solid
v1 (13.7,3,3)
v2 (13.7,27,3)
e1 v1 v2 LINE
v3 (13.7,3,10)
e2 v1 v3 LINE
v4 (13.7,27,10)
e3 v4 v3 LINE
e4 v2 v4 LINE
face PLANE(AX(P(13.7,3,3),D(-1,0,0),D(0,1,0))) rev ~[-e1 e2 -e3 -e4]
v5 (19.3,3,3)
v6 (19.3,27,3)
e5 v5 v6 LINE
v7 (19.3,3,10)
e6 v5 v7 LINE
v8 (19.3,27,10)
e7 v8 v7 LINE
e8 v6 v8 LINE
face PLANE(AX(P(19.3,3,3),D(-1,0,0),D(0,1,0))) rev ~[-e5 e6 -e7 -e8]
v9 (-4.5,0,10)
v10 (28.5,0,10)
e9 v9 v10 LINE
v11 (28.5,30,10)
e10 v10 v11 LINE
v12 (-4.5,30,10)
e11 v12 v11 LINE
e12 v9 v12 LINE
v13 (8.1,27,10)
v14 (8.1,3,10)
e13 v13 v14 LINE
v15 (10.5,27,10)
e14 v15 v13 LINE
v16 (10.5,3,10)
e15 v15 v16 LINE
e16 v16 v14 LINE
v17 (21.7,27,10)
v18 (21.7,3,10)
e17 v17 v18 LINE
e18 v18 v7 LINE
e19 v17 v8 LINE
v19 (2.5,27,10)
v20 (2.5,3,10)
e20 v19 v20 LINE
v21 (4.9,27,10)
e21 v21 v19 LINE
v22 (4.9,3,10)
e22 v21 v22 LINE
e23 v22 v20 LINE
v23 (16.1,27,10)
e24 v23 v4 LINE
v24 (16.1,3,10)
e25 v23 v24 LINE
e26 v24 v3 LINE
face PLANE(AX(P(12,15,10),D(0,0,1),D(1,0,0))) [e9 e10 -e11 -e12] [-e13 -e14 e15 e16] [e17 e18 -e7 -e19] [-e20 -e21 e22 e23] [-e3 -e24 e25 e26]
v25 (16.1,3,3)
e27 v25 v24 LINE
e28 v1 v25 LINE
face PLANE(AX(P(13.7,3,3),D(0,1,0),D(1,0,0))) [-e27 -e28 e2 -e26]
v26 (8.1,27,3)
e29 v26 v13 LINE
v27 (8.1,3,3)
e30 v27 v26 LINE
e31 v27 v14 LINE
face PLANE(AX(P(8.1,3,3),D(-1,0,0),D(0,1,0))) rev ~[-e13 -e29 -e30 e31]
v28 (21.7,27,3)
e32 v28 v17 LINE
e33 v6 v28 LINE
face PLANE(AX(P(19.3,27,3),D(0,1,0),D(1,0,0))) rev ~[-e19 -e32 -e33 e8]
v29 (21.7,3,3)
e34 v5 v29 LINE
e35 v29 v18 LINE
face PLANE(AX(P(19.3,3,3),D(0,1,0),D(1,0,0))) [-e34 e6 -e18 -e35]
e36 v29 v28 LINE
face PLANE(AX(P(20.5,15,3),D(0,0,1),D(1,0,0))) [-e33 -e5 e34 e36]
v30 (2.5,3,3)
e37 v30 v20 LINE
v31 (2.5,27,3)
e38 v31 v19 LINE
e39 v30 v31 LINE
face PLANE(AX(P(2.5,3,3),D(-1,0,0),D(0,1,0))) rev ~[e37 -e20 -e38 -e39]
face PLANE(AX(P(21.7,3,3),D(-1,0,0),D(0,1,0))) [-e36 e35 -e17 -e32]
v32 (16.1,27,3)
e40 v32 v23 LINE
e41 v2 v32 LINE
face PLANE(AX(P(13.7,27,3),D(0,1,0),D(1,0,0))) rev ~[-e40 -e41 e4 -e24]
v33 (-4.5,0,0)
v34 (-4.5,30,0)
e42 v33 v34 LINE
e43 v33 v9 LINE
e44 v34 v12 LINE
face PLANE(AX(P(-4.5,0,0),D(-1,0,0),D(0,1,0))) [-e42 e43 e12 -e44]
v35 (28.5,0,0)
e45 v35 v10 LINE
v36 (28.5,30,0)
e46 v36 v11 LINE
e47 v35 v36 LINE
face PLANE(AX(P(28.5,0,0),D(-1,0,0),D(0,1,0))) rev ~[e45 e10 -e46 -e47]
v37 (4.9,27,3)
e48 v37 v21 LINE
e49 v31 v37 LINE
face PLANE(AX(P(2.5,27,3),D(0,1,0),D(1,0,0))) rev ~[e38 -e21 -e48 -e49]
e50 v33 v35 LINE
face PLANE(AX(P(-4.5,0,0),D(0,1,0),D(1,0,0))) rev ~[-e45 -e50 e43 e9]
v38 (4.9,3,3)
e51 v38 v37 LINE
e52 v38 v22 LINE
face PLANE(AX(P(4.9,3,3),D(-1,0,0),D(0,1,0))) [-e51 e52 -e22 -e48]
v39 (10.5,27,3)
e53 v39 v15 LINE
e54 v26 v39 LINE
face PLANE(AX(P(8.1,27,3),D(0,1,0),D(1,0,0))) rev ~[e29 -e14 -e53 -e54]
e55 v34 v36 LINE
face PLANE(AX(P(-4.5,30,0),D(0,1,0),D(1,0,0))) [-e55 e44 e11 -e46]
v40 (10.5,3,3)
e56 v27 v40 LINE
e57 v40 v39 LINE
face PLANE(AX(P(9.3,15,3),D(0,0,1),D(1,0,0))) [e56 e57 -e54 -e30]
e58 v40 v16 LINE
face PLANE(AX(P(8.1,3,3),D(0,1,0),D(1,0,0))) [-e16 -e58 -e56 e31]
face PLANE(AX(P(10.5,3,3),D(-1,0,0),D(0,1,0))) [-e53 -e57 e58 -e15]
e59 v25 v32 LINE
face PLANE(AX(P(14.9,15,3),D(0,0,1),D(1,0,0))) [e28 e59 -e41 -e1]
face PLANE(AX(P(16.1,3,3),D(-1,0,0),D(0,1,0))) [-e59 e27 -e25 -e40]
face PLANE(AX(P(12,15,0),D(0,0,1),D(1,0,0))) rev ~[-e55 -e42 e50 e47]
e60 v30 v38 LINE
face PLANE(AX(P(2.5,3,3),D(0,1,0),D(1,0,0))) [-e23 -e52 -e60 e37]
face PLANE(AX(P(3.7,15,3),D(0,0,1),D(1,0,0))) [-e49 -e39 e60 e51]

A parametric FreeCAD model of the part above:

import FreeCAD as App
import Part
import Sketcher
from FreeCAD import Vector
Q = App.Units.Quantity


def add_polygon(sketch, points):
    """Adds a closed chain of lines whose ends are joined by coincident constraints."""
    first, n = sketch.GeometryCount, len(points)
    for a, b in zip(points, points[1:] + points[:1]):
        sketch.addGeometry(Part.LineSegment(App.Vector(*a, 0), App.Vector(*b, 0)), False)
    for i in range(n):
        sketch.addConstraint(Sketcher.Constraint("Coincident", first + i, 2, first + (i + 1) % n, 1))

doc = App.newDocument("Part")
params = doc.addObject("Spreadsheet::Sheet", "Params")
for row, (alias, value) in enumerate([
    ("sketch1_height", "24 mm"),
    ("sketch1_width", "2.4 mm"),
    ("pad1_length", "22 mm"),
    ("sketch2_height", "24 mm"),
    ("sketch2_width", "2.4 mm"),
    ("pad2_length", "22 mm"),
    ("sketch3_height", "24 mm"),
    ("sketch3_width", "2.4 mm"),
    ("pad3_length", "22 mm"),
    ("sketch4_height", "24 mm"),
    ("sketch4_width", "2.4 mm"),
    ("pad4_length", "22 mm"),
    ("sketch5_width", "33 mm"),
    ("sketch5_height", "30 mm"),
    ("pad5_length", "10 mm"),
], start=1):
    params.set(f"A{row}", alias)
    params.set(f"B{row}", "=" + value)
    params.setAlias(f"B{row}", alias)

body = doc.addObject("PartDesign::Body", "Body")

sketch1 = body.newObject("Sketcher::SketchObject", "Sketch")
sketch1.AttachmentSupport = (doc.getObject("XY_Plane"), [""])
sketch1.MapMode = "FlatFace"
add_polygon(sketch1, [(8.1, 27), (8.1, 3), (10.5, 3), (10.5, 27)])
sketch1.addConstraint([
    Sketcher.Constraint("Vertical", 0),
    Sketcher.Constraint("Horizontal", 1),
    Sketcher.Constraint("Vertical", 2),
    Sketcher.Constraint("Horizontal", 3),
    Sketcher.Constraint("DistanceY", 0, 2, 0, 1, Q("24 mm")),
    Sketcher.Constraint("DistanceX", 1, 1, 1, 2, Q("2.4 mm")),
    Sketcher.Constraint("DistanceY", -1, 1, 0, 2, Q("3 mm")),
    Sketcher.Constraint("DistanceX", -1, 1, 0, 2, Q("8.1 mm")),
])
sketch1.setExpression("Constraints[8]", "Params.sketch1_height")
sketch1.setExpression("Constraints[9]", "Params.sketch1_width")
pad1 = body.newObject("PartDesign::Pad", "Pad")
pad1.Profile = sketch1
pad1.setExpression("Length", "Params.pad1_length")
body2 = doc.addObject("PartDesign::Body", "Body001")

sketch2 = body2.newObject("Sketcher::SketchObject", "Sketch001")
sketch2.AttachmentSupport = (doc.getObject("XY_Plane001"), [""])
sketch2.MapMode = "FlatFace"
add_polygon(sketch2, [(13.7, 27), (13.7, 3), (16.1, 3), (16.1, 27)])
sketch2.addConstraint([
    Sketcher.Constraint("Vertical", 0),
    Sketcher.Constraint("Horizontal", 1),
    Sketcher.Constraint("Vertical", 2),
    Sketcher.Constraint("Horizontal", 3),
    Sketcher.Constraint("DistanceY", 0, 2, 0, 1, Q("24 mm")),
    Sketcher.Constraint("DistanceX", 1, 1, 1, 2, Q("2.4 mm")),
    Sketcher.Constraint("DistanceY", -1, 1, 0, 2, Q("3 mm")),
    Sketcher.Constraint("DistanceX", -1, 1, 0, 2, Q("13.7 mm")),
])
sketch2.setExpression("Constraints[8]", "Params.sketch2_height")
sketch2.setExpression("Constraints[9]", "Params.sketch2_width")
pad2 = body2.newObject("PartDesign::Pad", "Pad001")
pad2.Profile = sketch2
pad2.setExpression("Length", "Params.pad2_length")
body3 = doc.addObject("PartDesign::Body", "Body002")

sketch3 = body3.newObject("Sketcher::SketchObject", "Sketch002")
sketch3.AttachmentSupport = (doc.getObject("XY_Plane002"), [""])
sketch3.MapMode = "FlatFace"
add_polygon(sketch3, [(19.3, 27), (19.3, 3), (21.7, 3), (21.7, 27)])
sketch3.addConstraint([
    Sketcher.Constraint("Vertical", 0),
    Sketcher.Constraint("Horizontal", 1),
    Sketcher.Constraint("Vertical", 2),
    Sketcher.Constraint("Horizontal", 3),
    Sketcher.Constraint("DistanceY", 0, 2, 0, 1, Q("24 mm")),
    Sketcher.Constraint("DistanceX", 1, 1, 1, 2, Q("2.4 mm")),
    Sketcher.Constraint("DistanceY", -1, 1, 0, 2, Q("3 mm")),
    Sketcher.Constraint("DistanceX", -1, 1, 0, 2, Q("19.3 mm")),
])
sketch3.setExpression("Constraints[8]", "Params.sketch3_height")
sketch3.setExpression("Constraints[9]", "Params.sketch3_width")
pad3 = body3.newObject("PartDesign::Pad", "Pad002")
pad3.Profile = sketch3
pad3.setExpression("Length", "Params.pad3_length")
body4 = doc.addObject("PartDesign::Body", "Body003")
body4.AllowCompound = True

sketch4 = body4.newObject("Sketcher::SketchObject", "Sketch003")
sketch4.AttachmentSupport = (doc.getObject("XY_Plane003"), [""])
sketch4.MapMode = "FlatFace"
add_polygon(sketch4, [(2.5, 27), (2.5, 3), (4.9, 3), (4.9, 27)])
sketch4.addConstraint([
    Sketcher.Constraint("Vertical", 0),
    Sketcher.Constraint("Horizontal", 1),
    Sketcher.Constraint("Vertical", 2),
    Sketcher.Constraint("Horizontal", 3),
    Sketcher.Constraint("DistanceY", 0, 2, 0, 1, Q("24 mm")),
    Sketcher.Constraint("DistanceX", 1, 1, 1, 2, Q("2.4 mm")),
    Sketcher.Constraint("DistanceY", -1, 1, 0, 2, Q("3 mm")),
    Sketcher.Constraint("DistanceX", -1, 1, 0, 2, Q("2.5 mm")),
])
sketch4.setExpression("Constraints[8]", "Params.sketch4_height")
sketch4.setExpression("Constraints[9]", "Params.sketch4_width")
pad4 = body4.newObject("PartDesign::Pad", "Pad003")
pad4.Profile = sketch4
pad4.setExpression("Length", "Params.pad4_length")
doc.recompute()

boolean = body4.newObject("PartDesign::Boolean", "Boolean")
boolean.Type = "Fuse"
boolean.addObjects([body])
doc.recompute()

boolean2 = body4.newObject("PartDesign::Boolean", "Boolean001")
boolean2.Type = "Fuse"
boolean2.addObjects([body2])
doc.recompute()

boolean3 = body4.newObject("PartDesign::Boolean", "Boolean002")
boolean3.Type = "Fuse"
boolean3.addObjects([body3])
body5 = doc.addObject("PartDesign::Body", "Body004")
body5.AllowCompound = True
doc.recompute()

body4.Placement = App.Placement(Vector(0, 0, 3), App.Rotation(Vector(0, 0, 1), 0))
boolean4 = body5.newObject("PartDesign::Boolean", "Boolean003")
boolean4.Type = "Fuse"
boolean4.addObjects([body4])
body6 = doc.addObject("PartDesign::Body", "Body005")

sketch5 = body6.newObject("Sketcher::SketchObject", "Sketch004")
sketch5.AttachmentSupport = (doc.getObject("XY_Plane005"), [""])
sketch5.MapMode = "FlatFace"
add_polygon(sketch5, [(-4, 30), (-4, 0), (28, 0), (28, 30)])
sketch5.addConstraint([
    Sketcher.Constraint("Vertical", 0),
    Sketcher.Constraint("Horizontal", 1),
    Sketcher.Constraint("Vertical", 2),
    Sketcher.Constraint("Horizontal", 3),
    Sketcher.Constraint("PointOnObject", 0, 2, -1),
    Sketcher.Constraint("DistanceX", 1, 1, 1, 2, Q("33 mm")),
    Sketcher.Constraint("DistanceY", 0, 2, 0, 1, Q("30 mm")),
    Sketcher.Constraint("DistanceX", 0, 2, -1, 1, Q("4.5 mm")),
])
sketch5.setExpression("Constraints[9]", "Params.sketch5_width")
sketch5.setExpression("Constraints[10]", "Params.sketch5_height")
pad5 = body6.newObject("PartDesign::Pad", "Pad004")
pad5.Profile = sketch5
pad5.setExpression("Length", "Params.pad5_length")
doc.recompute()

boolean5 = body6.newObject("PartDesign::Boolean", "Boolean004")
boolean5.Type = "Cut"
boolean5.addObjects([body5])

doc.recompute()
